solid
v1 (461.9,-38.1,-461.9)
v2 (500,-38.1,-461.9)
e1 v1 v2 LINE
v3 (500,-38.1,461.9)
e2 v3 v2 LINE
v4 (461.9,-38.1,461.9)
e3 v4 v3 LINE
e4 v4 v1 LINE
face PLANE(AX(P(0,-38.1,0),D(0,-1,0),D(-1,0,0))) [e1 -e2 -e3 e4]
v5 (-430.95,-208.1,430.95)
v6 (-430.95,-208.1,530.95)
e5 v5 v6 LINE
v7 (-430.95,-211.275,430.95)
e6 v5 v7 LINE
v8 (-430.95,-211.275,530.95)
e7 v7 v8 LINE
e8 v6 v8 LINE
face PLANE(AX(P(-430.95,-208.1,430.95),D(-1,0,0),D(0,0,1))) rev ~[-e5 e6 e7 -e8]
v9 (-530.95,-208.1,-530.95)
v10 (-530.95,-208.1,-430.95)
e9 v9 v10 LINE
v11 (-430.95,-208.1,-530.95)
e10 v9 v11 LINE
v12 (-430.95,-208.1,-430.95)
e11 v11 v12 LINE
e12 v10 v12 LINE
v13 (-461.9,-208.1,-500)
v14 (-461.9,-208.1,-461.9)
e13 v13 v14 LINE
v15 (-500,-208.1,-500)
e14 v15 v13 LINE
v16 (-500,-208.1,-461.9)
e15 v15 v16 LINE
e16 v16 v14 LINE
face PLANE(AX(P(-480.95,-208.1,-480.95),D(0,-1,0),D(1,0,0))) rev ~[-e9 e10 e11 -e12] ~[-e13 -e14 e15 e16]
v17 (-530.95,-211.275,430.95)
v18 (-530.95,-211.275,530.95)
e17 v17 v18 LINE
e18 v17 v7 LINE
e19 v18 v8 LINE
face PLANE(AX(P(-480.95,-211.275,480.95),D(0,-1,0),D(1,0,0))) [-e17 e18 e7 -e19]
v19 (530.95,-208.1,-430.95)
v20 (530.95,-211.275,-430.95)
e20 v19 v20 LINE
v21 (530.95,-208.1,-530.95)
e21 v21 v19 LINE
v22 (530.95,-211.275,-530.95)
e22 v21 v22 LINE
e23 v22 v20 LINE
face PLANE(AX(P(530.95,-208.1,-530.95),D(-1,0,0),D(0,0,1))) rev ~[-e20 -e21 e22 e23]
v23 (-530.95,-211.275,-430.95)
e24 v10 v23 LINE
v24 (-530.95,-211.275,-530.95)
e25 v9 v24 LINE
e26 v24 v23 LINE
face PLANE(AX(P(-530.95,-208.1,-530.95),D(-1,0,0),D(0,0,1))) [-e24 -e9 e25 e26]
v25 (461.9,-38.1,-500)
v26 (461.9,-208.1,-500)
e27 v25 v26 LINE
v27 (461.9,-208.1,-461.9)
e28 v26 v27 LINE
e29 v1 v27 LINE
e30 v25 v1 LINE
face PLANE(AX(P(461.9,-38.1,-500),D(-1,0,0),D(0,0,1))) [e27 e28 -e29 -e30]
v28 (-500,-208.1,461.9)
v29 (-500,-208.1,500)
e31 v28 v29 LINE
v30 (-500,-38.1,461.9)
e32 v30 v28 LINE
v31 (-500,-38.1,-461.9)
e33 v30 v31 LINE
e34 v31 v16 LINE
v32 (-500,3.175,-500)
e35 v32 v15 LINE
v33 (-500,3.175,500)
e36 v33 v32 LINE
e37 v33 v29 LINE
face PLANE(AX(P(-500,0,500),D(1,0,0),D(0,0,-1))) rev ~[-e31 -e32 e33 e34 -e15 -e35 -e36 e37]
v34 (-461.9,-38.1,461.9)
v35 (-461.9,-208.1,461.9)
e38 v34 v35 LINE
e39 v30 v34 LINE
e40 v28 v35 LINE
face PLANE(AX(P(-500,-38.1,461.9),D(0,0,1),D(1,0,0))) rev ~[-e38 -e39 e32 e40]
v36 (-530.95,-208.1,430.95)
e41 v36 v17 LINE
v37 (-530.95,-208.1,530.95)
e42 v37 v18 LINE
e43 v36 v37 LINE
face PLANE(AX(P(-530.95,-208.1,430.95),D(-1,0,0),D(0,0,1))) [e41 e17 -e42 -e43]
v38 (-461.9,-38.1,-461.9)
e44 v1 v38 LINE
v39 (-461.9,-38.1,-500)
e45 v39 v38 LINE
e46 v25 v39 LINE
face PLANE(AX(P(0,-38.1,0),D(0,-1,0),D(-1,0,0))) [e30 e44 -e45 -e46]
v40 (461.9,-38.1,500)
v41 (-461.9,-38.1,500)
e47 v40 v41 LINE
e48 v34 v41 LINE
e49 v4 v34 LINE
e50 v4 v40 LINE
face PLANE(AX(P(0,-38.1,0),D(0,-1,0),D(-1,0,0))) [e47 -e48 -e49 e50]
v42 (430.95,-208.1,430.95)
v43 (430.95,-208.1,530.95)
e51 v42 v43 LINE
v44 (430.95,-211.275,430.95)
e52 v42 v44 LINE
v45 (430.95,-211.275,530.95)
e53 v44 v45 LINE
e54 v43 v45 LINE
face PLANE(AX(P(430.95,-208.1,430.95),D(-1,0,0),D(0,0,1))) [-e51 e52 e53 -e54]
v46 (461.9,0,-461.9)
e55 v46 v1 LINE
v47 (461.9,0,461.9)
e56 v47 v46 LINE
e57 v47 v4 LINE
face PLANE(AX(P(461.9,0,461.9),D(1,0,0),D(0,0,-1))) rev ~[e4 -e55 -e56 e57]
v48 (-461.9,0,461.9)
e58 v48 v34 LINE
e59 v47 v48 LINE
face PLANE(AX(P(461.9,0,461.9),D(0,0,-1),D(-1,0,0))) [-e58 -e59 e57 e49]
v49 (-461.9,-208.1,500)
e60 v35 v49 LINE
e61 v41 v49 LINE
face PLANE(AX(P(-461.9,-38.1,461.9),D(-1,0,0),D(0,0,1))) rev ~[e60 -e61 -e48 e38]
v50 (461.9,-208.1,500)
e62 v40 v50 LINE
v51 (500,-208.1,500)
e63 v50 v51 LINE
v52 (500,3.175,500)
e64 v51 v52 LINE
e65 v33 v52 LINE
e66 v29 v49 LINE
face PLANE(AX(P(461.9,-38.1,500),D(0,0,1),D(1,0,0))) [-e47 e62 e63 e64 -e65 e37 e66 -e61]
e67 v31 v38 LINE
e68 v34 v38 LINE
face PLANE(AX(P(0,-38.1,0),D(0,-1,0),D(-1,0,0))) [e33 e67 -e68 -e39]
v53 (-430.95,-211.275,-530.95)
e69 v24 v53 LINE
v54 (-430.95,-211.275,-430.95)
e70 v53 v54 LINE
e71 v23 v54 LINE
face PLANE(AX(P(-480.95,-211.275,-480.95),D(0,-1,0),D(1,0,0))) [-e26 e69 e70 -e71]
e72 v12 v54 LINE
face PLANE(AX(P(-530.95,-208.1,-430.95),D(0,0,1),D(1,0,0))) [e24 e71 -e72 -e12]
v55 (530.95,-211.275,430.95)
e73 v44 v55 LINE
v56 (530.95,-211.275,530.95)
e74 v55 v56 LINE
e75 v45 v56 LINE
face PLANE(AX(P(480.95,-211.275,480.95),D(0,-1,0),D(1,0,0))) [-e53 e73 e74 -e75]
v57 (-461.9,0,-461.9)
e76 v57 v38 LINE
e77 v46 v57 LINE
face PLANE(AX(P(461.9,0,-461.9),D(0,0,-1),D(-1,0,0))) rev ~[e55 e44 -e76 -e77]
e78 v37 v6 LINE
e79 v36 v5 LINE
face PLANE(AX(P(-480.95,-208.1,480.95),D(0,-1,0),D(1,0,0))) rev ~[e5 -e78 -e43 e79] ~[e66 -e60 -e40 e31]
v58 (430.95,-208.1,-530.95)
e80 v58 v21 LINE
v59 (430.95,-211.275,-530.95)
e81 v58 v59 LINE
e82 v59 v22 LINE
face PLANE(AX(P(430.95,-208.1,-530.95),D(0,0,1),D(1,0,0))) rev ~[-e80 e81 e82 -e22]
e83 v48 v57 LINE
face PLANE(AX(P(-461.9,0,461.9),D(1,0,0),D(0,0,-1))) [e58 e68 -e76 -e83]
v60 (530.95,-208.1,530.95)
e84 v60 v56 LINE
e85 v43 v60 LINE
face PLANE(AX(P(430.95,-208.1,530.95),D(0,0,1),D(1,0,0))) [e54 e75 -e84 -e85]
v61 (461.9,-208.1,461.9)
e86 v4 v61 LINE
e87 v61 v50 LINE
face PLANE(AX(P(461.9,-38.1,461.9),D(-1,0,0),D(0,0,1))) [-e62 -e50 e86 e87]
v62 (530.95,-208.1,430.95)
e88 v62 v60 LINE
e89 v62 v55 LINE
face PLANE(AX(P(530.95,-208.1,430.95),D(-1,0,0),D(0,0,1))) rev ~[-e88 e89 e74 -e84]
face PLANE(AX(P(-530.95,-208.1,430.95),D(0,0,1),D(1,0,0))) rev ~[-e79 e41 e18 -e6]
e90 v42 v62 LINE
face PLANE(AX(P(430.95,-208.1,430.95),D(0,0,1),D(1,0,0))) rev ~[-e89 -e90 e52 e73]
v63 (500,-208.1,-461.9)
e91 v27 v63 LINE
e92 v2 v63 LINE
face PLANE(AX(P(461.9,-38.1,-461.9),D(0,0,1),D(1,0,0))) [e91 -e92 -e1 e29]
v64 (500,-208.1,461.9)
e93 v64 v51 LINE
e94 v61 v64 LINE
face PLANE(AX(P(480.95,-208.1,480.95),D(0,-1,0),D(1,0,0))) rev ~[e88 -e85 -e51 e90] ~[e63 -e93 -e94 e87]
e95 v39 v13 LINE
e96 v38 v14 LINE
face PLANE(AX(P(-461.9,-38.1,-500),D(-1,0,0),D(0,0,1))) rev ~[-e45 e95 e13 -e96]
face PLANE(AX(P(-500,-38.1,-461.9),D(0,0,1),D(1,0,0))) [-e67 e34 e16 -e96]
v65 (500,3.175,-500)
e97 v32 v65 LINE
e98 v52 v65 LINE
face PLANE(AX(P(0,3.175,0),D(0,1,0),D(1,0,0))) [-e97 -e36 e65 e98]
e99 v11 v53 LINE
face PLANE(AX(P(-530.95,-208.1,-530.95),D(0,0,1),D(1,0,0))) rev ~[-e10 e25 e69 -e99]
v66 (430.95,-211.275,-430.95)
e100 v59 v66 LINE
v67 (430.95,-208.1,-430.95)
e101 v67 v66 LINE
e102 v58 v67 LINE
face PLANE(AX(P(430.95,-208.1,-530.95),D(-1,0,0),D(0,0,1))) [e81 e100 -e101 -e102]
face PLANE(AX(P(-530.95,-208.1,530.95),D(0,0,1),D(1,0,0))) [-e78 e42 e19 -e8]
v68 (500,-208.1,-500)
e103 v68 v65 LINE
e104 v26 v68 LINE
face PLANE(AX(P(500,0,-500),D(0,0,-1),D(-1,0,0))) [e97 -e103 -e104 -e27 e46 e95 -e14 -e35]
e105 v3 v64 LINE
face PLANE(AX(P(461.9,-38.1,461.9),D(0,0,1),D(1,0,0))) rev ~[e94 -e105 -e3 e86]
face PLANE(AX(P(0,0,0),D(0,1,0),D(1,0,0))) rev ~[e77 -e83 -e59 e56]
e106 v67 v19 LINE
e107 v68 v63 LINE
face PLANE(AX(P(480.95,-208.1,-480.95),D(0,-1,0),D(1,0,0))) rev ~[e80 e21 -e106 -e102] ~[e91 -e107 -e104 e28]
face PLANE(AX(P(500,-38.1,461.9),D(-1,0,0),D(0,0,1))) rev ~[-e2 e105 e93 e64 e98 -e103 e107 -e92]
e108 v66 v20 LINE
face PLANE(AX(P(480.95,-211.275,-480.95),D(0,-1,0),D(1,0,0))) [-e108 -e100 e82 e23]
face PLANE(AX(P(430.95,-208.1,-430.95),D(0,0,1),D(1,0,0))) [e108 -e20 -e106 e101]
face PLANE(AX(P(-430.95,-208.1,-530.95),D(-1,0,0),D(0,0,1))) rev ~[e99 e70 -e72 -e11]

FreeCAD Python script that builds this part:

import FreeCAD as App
import Part
import Sketcher
from FreeCAD import Vector
Q = App.Units.Quantity


def add_polygon(sketch, points):
    """Adds a closed chain of lines whose ends are joined by coincident constraints."""
    first, n = sketch.GeometryCount, len(points)
    for a, b in zip(points, points[1:] + points[:1]):
        sketch.addGeometry(Part.LineSegment(App.Vector(*a, 0), App.Vector(*b, 0)), False)
    for i in range(n):
        sketch.addConstraint(Sketcher.Constraint("Coincident", first + i, 2, first + (i + 1) % n, 1))

doc = App.newDocument("Part")
body = doc.addObject("PartDesign::Body", "Body")

# Sketch on XZ plane
sketch1 = doc.addObject("Sketcher::SketchObject", "Sketch")
body.addObject(sketch1)
sketch1.AttachmentSupport = (doc.XZ_Plane, [""])
sketch1.MapMode = "FlatFace"
add_polygon(sketch1, [(-500, -500), (-500, 500), (500, 500), (500, -500)])  # lines 0-3
sketch1.addConstraint(Sketcher.Constraint("Vertical", 0))
sketch1.addConstraint(Sketcher.Constraint("Horizontal", 1))
sketch1.addConstraint(Sketcher.Constraint("Vertical", 2))
sketch1.addConstraint(Sketcher.Constraint("Horizontal", 3))
sketch1.addConstraint(Sketcher.Constraint("Symmetric", 0, 2, 2, 2, -1, 1))
sketch1.addConstraint(Sketcher.Constraint("Equal", 3, 0))
sketch1.addConstraint(Sketcher.Constraint("DistanceX", 1, 1, 1, 2, Q("1000 mm")))
pad1 = doc.addObject("PartDesign::Pad", "Pad")
body.addObject(pad1)
pad1.Profile = sketch1
pad1.Length = 3.175
pad1.Reversed = True

# Sketch on XZ plane
sketch2 = doc.addObject("Sketcher::SketchObject", "Sketch001")
body.addObject(sketch2)
sketch2.AttachmentSupport = (doc.XZ_Plane, [""])
sketch2.MapMode = "FlatFace"
add_polygon(sketch2, [(500, -500), (500, 500), (-500, 500), (-500, -500)])  # lines 0-3
add_polygon(sketch2, [(-461.9, 461.9), (461.9, 461.9), (461.9, -461.9), (-461.9, -461.9)])  # lines 4-7
sketch2.addConstraint(Sketcher.Constraint("Vertical", 0))
sketch2.addConstraint(Sketcher.Constraint("Horizontal", 1))
sketch2.addConstraint(Sketcher.Constraint("Vertical", 2))
sketch2.addConstraint(Sketcher.Constraint("Horizontal", 3))
sketch2.addConstraint(Sketcher.Constraint("Horizontal", 4))
sketch2.addConstraint(Sketcher.Constraint("Vertical", 5))
sketch2.addConstraint(Sketcher.Constraint("Horizontal", 6))
sketch2.addConstraint(Sketcher.Constraint("Vertical", 7))
sketch2.addConstraint(Sketcher.Constraint("Symmetric", 0, 2, 2, 2, -1, 1))
sketch2.addConstraint(Sketcher.Constraint("Symmetric", 4, 2, 6, 2, -1, 1))
sketch2.addConstraint(Sketcher.Constraint("Equal", 3, 0))
sketch2.addConstraint(Sketcher.Constraint("Equal", 6, 5))
sketch2.addConstraint(Sketcher.Constraint("DistanceX", 1, 2, 1, 1, Q("1000 mm")))
sketch2.addConstraint(Sketcher.Constraint("DistanceX", 4, 1, 4, 2, Q("923.8 mm")))
pad2 = doc.addObject("PartDesign::Pad", "Pad001")
body.addObject(pad2)
pad2.Profile = sketch2
pad2.Length = 38.1

# Sketch on XZ plane
sketch3 = doc.addObject("Sketcher::SketchObject", "Sketch002")
body.addObject(sketch3)
sketch3.AttachmentSupport = (doc.XZ_Plane, [""])
sketch3.MapMode = "FlatFace"
sketch3.AttachmentOffset = App.Placement(Vector(0, 0, 38.1), App.Rotation())
add_polygon(sketch3, [(461.9, 500), (461.9, 461.9), (500, 461.9), (500, 500)])  # lines 0-3
add_polygon(sketch3, [(-500, 500), (-500, 461.9), (-461.9, 461.9), (-461.9, 500)])  # lines 4-7
add_polygon(sketch3, [(461.9, -461.9), (461.9, -500), (500, -500), (500, -461.9)])  # lines 8-11
add_polygon(sketch3, [(-500, -461.9), (-500, -500), (-461.9, -500), (-461.9, -461.9)])  # lines 12-15
sketch3.addConstraint(Sketcher.Constraint("Vertical", 0))
sketch3.addConstraint(Sketcher.Constraint("Horizontal", 1))
sketch3.addConstraint(Sketcher.Constraint("Vertical", 2))
sketch3.addConstraint(Sketcher.Constraint("Horizontal", 3))
sketch3.addConstraint(Sketcher.Constraint("Vertical", 4))
sketch3.addConstraint(Sketcher.Constraint("Horizontal", 5))
sketch3.addConstraint(Sketcher.Constraint("Vertical", 6))
sketch3.addConstraint(Sketcher.Constraint("Horizontal", 7))
sketch3.addConstraint(Sketcher.Constraint("Vertical", 8))
sketch3.addConstraint(Sketcher.Constraint("Horizontal", 9))
sketch3.addConstraint(Sketcher.Constraint("Vertical", 10))
sketch3.addConstraint(Sketcher.Constraint("Horizontal", 11))
sketch3.addConstraint(Sketcher.Constraint("Vertical", 12))
sketch3.addConstraint(Sketcher.Constraint("Horizontal", 13))
sketch3.addConstraint(Sketcher.Constraint("Vertical", 14))
sketch3.addConstraint(Sketcher.Constraint("Horizontal", 15))
sketch3.addConstraint(Sketcher.Constraint("Symmetric", 6, 2, 8, 2, -1, 1))
sketch3.addConstraint(Sketcher.Constraint("Symmetric", 4, 2, 10, 2, -1, 1))
sketch3.addConstraint(Sketcher.Constraint("Symmetric", 2, 2, 12, 2, -1, 1))
sketch3.addConstraint(Sketcher.Constraint("Symmetric", 0, 2, 14, 2, -1, 1))
sketch3.addConstraint(Sketcher.Constraint("Symmetric", 1, 2, 4, 2, -2))
sketch3.addConstraint(Sketcher.Constraint("Symmetric", 3, 2, 6, 2, -2))
sketch3.addConstraint(Sketcher.Constraint("Equal", 15, 0))
sketch3.addConstraint(Sketcher.Constraint("DistanceX", 1, 1, 1, 2, Q("38.1 mm")))
sketch3.addConstraint(Sketcher.Constraint("DistanceX", -1, 1, 1, 2, Q("500 mm")))
sketch3.addConstraint(Sketcher.Constraint("DistanceY", -1, 1, 2, 2, Q("500 mm")))
pad3 = doc.addObject("PartDesign::Pad", "Pad002")
body.addObject(pad3)
pad3.Profile = sketch3
pad3.Length = 170

# Sketch on XZ plane
sketch4 = doc.addObject("Sketcher::SketchObject", "Sketch003")
body.addObject(sketch4)
sketch4.AttachmentSupport = (doc.XZ_Plane, [""])
sketch4.MapMode = "FlatFace"
sketch4.AttachmentOffset = App.Placement(Vector(0, 0, 208.1), App.Rotation())
add_polygon(sketch4, [(430.95, 530.95), (430.95, 430.95), (530.95, 430.95), (530.95, 530.95)])  # lines 0-3
add_polygon(sketch4, [(-530.95, 530.95), (-530.95, 430.95), (-430.95, 430.95), (-430.95, 530.95)])  # lines 4-7
add_polygon(sketch4, [(430.95, -430.95), (430.95, -530.95), (530.95, -530.95), (530.95, -430.95)])  # lines 8-11
add_polygon(sketch4, [(-530.95, -430.95), (-530.95, -530.95), (-430.95, -530.95), (-430.95, -430.95)])  # lines 12-15
sketch4.addConstraint(Sketcher.Constraint("Vertical", 0))
sketch4.addConstraint(Sketcher.Constraint("Horizontal", 1))
sketch4.addConstraint(Sketcher.Constraint("Vertical", 2))
sketch4.addConstraint(Sketcher.Constraint("Horizontal", 3))
sketch4.addConstraint(Sketcher.Constraint("Vertical", 4))
sketch4.addConstraint(Sketcher.Constraint("Horizontal", 5))
sketch4.addConstraint(Sketcher.Constraint("Vertical", 6))
sketch4.addConstraint(Sketcher.Constraint("Horizontal", 7))
sketch4.addConstraint(Sketcher.Constraint("Vertical", 8))
sketch4.addConstraint(Sketcher.Constraint("Horizontal", 9))
sketch4.addConstraint(Sketcher.Constraint("Vertical", 10))
sketch4.addConstraint(Sketcher.Constraint("Horizontal", 11))
sketch4.addConstraint(Sketcher.Constraint("Vertical", 12))
sketch4.addConstraint(Sketcher.Constraint("Horizontal", 13))
sketch4.addConstraint(Sketcher.Constraint("Vertical", 14))
sketch4.addConstraint(Sketcher.Constraint("Horizontal", 15))
sketch4.addConstraint(Sketcher.Constraint("Symmetric", 6, 2, 8, 2, -1, 1))
sketch4.addConstraint(Sketcher.Constraint("Symmetric", 4, 2, 10, 2, -1, 1))
sketch4.addConstraint(Sketcher.Constraint("Symmetric", 2, 2, 12, 2, -1, 1))
sketch4.addConstraint(Sketcher.Constraint("Symmetric", 0, 2, 14, 2, -1, 1))
sketch4.addConstraint(Sketcher.Constraint("Symmetric", 1, 2, 4, 2, -2))
sketch4.addConstraint(Sketcher.Constraint("Symmetric", 3, 2, 6, 2, -2))
sketch4.addConstraint(Sketcher.Constraint("Equal", 15, 0))
sketch4.addConstraint(Sketcher.Constraint("DistanceX", 1, 1, 1, 2, Q("100 mm")))
sketch4.addConstraint(Sketcher.Constraint("DistanceX", 4, 2, 0, 2, Q("961.9 mm")))
sketch4.addConstraint(Sketcher.Constraint("DistanceY", 8, 2, 0, 2, Q("961.9 mm")))
pad4 = doc.addObject("PartDesign::Pad", "Pad003")
body.addObject(pad4)
pad4.Profile = sketch4
pad4.Length = 3.175

doc.recompute()
